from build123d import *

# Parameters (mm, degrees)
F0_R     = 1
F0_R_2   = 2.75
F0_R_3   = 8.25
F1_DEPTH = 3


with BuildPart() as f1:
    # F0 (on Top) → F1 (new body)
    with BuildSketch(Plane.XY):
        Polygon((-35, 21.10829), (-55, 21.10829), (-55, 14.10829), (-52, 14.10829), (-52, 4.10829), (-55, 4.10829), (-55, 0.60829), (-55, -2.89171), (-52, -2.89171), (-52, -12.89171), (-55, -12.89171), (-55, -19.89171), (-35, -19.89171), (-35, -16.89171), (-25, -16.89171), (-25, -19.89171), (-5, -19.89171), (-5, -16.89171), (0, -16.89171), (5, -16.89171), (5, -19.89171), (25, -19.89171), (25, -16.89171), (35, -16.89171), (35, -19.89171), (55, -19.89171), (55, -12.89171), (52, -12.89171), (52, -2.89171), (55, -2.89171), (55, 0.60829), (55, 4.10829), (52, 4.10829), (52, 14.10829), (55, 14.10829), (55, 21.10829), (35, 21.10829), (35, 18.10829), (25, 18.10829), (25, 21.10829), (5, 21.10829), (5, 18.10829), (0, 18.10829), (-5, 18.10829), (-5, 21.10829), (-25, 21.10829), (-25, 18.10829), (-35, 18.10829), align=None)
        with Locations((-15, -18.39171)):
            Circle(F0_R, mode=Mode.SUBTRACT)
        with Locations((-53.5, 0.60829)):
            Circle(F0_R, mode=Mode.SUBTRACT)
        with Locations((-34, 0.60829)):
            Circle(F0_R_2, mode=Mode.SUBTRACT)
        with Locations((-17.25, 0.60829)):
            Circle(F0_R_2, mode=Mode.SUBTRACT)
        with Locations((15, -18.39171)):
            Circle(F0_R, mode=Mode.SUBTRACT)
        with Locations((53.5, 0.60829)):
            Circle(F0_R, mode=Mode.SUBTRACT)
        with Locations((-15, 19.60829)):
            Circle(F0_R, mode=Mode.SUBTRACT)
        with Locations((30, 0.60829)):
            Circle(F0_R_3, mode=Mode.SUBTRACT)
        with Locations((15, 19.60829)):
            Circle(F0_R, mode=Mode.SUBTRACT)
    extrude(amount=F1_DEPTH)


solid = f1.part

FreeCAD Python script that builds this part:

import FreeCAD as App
import Part
import Sketcher
Q = App.Units.Quantity

doc = App.newDocument("Part")
body = doc.addObject("PartDesign::Body", "Body")

# Sketch on XY plane
sketch1 = body.newObject("Sketcher::SketchObject", "Sketch")
sketch1.AttachmentSupport = (doc.getObject("XY_Plane"), [""])
sketch1.MapMode = "FlatFace"
sketch1.addGeometry(Part.LineSegment(App.Vector(-35, 21.1, 0), App.Vector(-55, 21.1, 0)), False)
sketch1.addGeometry(Part.LineSegment(App.Vector(-55, 21.1, 0), App.Vector(-55, 14.1, 0)), False)
sketch1.addGeometry(Part.LineSegment(App.Vector(-55, 14.1, 0), App.Vector(-52, 14.1, 0)), False)
sketch1.addGeometry(Part.LineSegment(App.Vector(-52, 14.1, 0), App.Vector(-52, 4.1, 0)), False)
sketch1.addGeometry(Part.LineSegment(App.Vector(-52, 4.1, 0), App.Vector(-55, 4.1, 0)), False)
sketch1.addGeometry(Part.LineSegment(App.Vector(-55, 4.1, 0), App.Vector(-55, -2.9, 0)), False)
sketch1.addGeometry(Part.LineSegment(App.Vector(-55, -2.9, 0), App.Vector(-52, -2.9, 0)), False)
sketch1.addGeometry(Part.LineSegment(App.Vector(-52, -2.9, 0), App.Vector(-52, -12.9, 0)), False)
sketch1.addGeometry(Part.LineSegment(App.Vector(-52, -12.9, 0), App.Vector(-55, -12.9, 0)), False)
sketch1.addGeometry(Part.LineSegment(App.Vector(-55, -12.9, 0), App.Vector(-55, -19.9, 0)), False)
sketch1.addGeometry(Part.LineSegment(App.Vector(-55, -19.9, 0), App.Vector(-35, -19.9, 0)), False)
sketch1.addGeometry(Part.LineSegment(App.Vector(-35, -19.9, 0), App.Vector(-35, -16.9, 0)), False)
sketch1.addGeometry(Part.LineSegment(App.Vector(-35, -16.9, 0), App.Vector(-25, -16.9, 0)), False)
sketch1.addGeometry(Part.LineSegment(App.Vector(-25, -16.9, 0), App.Vector(-25, -19.9, 0)), False)
sketch1.addGeometry(Part.LineSegment(App.Vector(-25, -19.9, 0), App.Vector(-5, -19.9, 0)), False)
sketch1.addGeometry(Part.LineSegment(App.Vector(-5, -19.9, 0), App.Vector(-5, -16.9, 0)), False)
sketch1.addGeometry(Part.LineSegment(App.Vector(-5, -16.9, 0), App.Vector(5, -16.9, 0)), False)
sketch1.addGeometry(Part.LineSegment(App.Vector(5, -16.9, 0), App.Vector(5, -19.9, 0)), False)
sketch1.addGeometry(Part.LineSegment(App.Vector(5, -19.9, 0), App.Vector(25, -19.9, 0)), False)
sketch1.addGeometry(Part.LineSegment(App.Vector(25, -19.9, 0), App.Vector(25, -16.9, 0)), False)
sketch1.addGeometry(Part.LineSegment(App.Vector(25, -16.9, 0), App.Vector(35, -16.9, 0)), False)
sketch1.addGeometry(Part.LineSegment(App.Vector(35, -16.9, 0), App.Vector(35, -19.9, 0)), False)
sketch1.addGeometry(Part.LineSegment(App.Vector(35, -19.9, 0), App.Vector(55, -19.9, 0)), False)
sketch1.addGeometry(Part.LineSegment(App.Vector(55, -19.9, 0), App.Vector(55, -12.9, 0)), False)
sketch1.addGeometry(Part.LineSegment(App.Vector(55, -12.9, 0), App.Vector(52, -12.9, 0)), False)
sketch1.addGeometry(Part.LineSegment(App.Vector(52, -12.9, 0), App.Vector(52, -2.9, 0)), False)
sketch1.addGeometry(Part.LineSegment(App.Vector(52, -2.9, 0), App.Vector(55, -2.9, 0)), False)
sketch1.addGeometry(Part.LineSegment(App.Vector(55, -2.9, 0), App.Vector(55, 4.1, 0)), False)
sketch1.addGeometry(Part.LineSegment(App.Vector(55, 4.1, 0), App.Vector(52, 4.1, 0)), False)
sketch1.addGeometry(Part.LineSegment(App.Vector(52, 4.1, 0), App.Vector(52, 14.1, 0)), False)
sketch1.addGeometry(Part.LineSegment(App.Vector(52, 14.1, 0), App.Vector(55, 14.1, 0)), False)
sketch1.addGeometry(Part.LineSegment(App.Vector(55, 14.1, 0), App.Vector(55, 21.1, 0)), False)
sketch1.addGeometry(Part.LineSegment(App.Vector(55, 21.1, 0), App.Vector(35, 21.1, 0)), False)
sketch1.addGeometry(Part.LineSegment(App.Vector(35, 21.1, 0), App.Vector(35, 18.1, 0)), False)
sketch1.addGeometry(Part.LineSegment(App.Vector(35, 18.1, 0), App.Vector(25, 18.1, 0)), False)
sketch1.addGeometry(Part.LineSegment(App.Vector(25, 18.1, 0), App.Vector(25, 21.1, 0)), False)
sketch1.addGeometry(Part.LineSegment(App.Vector(25, 21.1, 0), App.Vector(5, 21.1, 0)), False)
sketch1.addGeometry(Part.LineSegment(App.Vector(5, 21.1, 0), App.Vector(5, 18.1, 0)), False)
sketch1.addGeometry(Part.LineSegment(App.Vector(5, 18.1, 0), App.Vector(-5, 18.1, 0)), False)
sketch1.addGeometry(Part.LineSegment(App.Vector(-5, 18.1, 0), App.Vector(-5, 21.1, 0)), False)
sketch1.addGeometry(Part.LineSegment(App.Vector(-5, 21.1, 0), App.Vector(-25, 21.1, 0)), False)
sketch1.addGeometry(Part.LineSegment(App.Vector(-25, 21.1, 0), App.Vector(-25, 18.1, 0)), False)
sketch1.addGeometry(Part.LineSegment(App.Vector(-25, 18.1, 0), App.Vector(-35, 18.1, 0)), False)
sketch1.addGeometry(Part.LineSegment(App.Vector(-35, 18.1, 0), App.Vector(-35, 21.1, 0)), False)
sketch1.addGeometry(Part.Circle(App.Vector(-15, -18.4, 0), App.Vector(0, 0, 1), 1), False)
sketch1.addGeometry(Part.Circle(App.Vector(15, -18.4, 0), App.Vector(0, 0, 1), 1), False)
sketch1.addGeometry(Part.Circle(App.Vector(-53.5, 0.6, 0), App.Vector(0, 0, 1), 1), False)
sketch1.addGeometry(Part.Circle(App.Vector(-34, 0.6, 0), App.Vector(0, 0, 1), 2.8), False)
sketch1.addGeometry(Part.Circle(App.Vector(-17.2, 0.6, 0), App.Vector(0, 0, 1), 2.8), False)
sketch1.addGeometry(Part.Circle(App.Vector(-15, 19.6, 0), App.Vector(0, 0, 1), 1), False)
sketch1.addGeometry(Part.Circle(App.Vector(30, 0.6, 0), App.Vector(0, 0, 1), 8.2), False)
sketch1.addGeometry(Part.Circle(App.Vector(53.5, 0.6, 0), App.Vector(0, 0, 1), 1), False)
sketch1.addGeometry(Part.Circle(App.Vector(15, 19.6, 0), App.Vector(0, 0, 1), 1), False)
sketch1.addConstraint(Sketcher.Constraint("Coincident", 0, 2, 1, 1))
sketch1.addConstraint(Sketcher.Constraint("Coincident", 1, 2, 2, 1))
sketch1.addConstraint(Sketcher.Constraint("Coincident", 2, 2, 3, 1))
sketch1.addConstraint(Sketcher.Constraint("Coincident", 3, 2, 4, 1))
sketch1.addConstraint(Sketcher.Constraint("Coincident", 4, 2, 5, 1))
sketch1.addConstraint(Sketcher.Constraint("Coincident", 5, 2, 6, 1))
sketch1.addConstraint(Sketcher.Constraint("Coincident", 6, 2, 7, 1))
sketch1.addConstraint(Sketcher.Constraint("Coincident", 7, 2, 8, 1))
sketch1.addConstraint(Sketcher.Constraint("Coincident", 8, 2, 9, 1))
sketch1.addConstraint(Sketcher.Constraint("Coincident", 9, 2, 10, 1))
sketch1.addConstraint(Sketcher.Constraint("Coincident", 10, 2, 11, 1))
sketch1.addConstraint(Sketcher.Constraint("Coincident", 11, 2, 12, 1))
sketch1.addConstraint(Sketcher.Constraint("Coincident", 12, 2, 13, 1))
sketch1.addConstraint(Sketcher.Constraint("Coincident", 13, 2, 14, 1))
sketch1.addConstraint(Sketcher.Constraint("Coincident", 14, 2, 15, 1))
sketch1.addConstraint(Sketcher.Constraint("Coincident", 15, 2, 16, 1))
sketch1.addConstraint(Sketcher.Constraint("Coincident", 16, 2, 17, 1))
sketch1.addConstraint(Sketcher.Constraint("Coincident", 17, 2, 18, 1))
sketch1.addConstraint(Sketcher.Constraint("Coincident", 18, 2, 19, 1))
sketch1.addConstraint(Sketcher.Constraint("Coincident", 19, 2, 20, 1))
sketch1.addConstraint(Sketcher.Constraint("Coincident", 20, 2, 21, 1))
sketch1.addConstraint(Sketcher.Constraint("Coincident", 21, 2, 22, 1))
sketch1.addConstraint(Sketcher.Constraint("Coincident", 22, 2, 23, 1))
sketch1.addConstraint(Sketcher.Constraint("Coincident", 23, 2, 24, 1))
sketch1.addConstraint(Sketcher.Constraint("Coincident", 24, 2, 25, 1))
sketch1.addConstraint(Sketcher.Constraint("Coincident", 25, 2, 26, 1))
sketch1.addConstraint(Sketcher.Constraint("Coincident", 26, 2, 27, 1))
sketch1.addConstraint(Sketcher.Constraint("Coincident", 27, 2, 28, 1))
sketch1.addConstraint(Sketcher.Constraint("Coincident", 28, 2, 29, 1))
sketch1.addConstraint(Sketcher.Constraint("Coincident", 29, 2, 30, 1))
sketch1.addConstraint(Sketcher.Constraint("Coincident", 30, 2, 31, 1))
sketch1.addConstraint(Sketcher.Constraint("Coincident", 31, 2, 32, 1))
sketch1.addConstraint(Sketcher.Constraint("Coincident", 32, 2, 33, 1))
sketch1.addConstraint(Sketcher.Constraint("Coincident", 33, 2, 34, 1))
sketch1.addConstraint(Sketcher.Constraint("Coincident", 34, 2, 35, 1))
sketch1.addConstraint(Sketcher.Constraint("Coincident", 35, 2, 36, 1))
sketch1.addConstraint(Sketcher.Constraint("Coincident", 36, 2, 37, 1))
sketch1.addConstraint(Sketcher.Constraint("Coincident", 37, 2, 38, 1))
sketch1.addConstraint(Sketcher.Constraint("Coincident", 38, 2, 39, 1))
sketch1.addConstraint(Sketcher.Constraint("Coincident", 39, 2, 40, 1))
sketch1.addConstraint(Sketcher.Constraint("Coincident", 40, 2, 41, 1))
sketch1.addConstraint(Sketcher.Constraint("Coincident", 41, 2, 42, 1))
sketch1.addConstraint(Sketcher.Constraint("Coincident", 42, 2, 43, 1))
sketch1.addConstraint(Sketcher.Constraint("Coincident", 43, 2, 0, 1))
sketch1.addConstraint(Sketcher.Constraint("Horizontal", 0))
sketch1.addConstraint(Sketcher.Constraint("Vertical", 1))
sketch1.addConstraint(Sketcher.Constraint("Horizontal", 2))
sketch1.addConstraint(Sketcher.Constraint("Vertical", 3))
sketch1.addConstraint(Sketcher.Constraint("Horizontal", 4))
sketch1.addConstraint(Sketcher.Constraint("Vertical", 5))
sketch1.addConstraint(Sketcher.Constraint("Horizontal", 6))
sketch1.addConstraint(Sketcher.Constraint("Vertical", 7))
sketch1.addConstraint(Sketcher.Constraint("Horizontal", 8))
sketch1.addConstraint(Sketcher.Constraint("Vertical", 9))
sketch1.addConstraint(Sketcher.Constraint("Horizontal", 10))
sketch1.addConstraint(Sketcher.Constraint("Vertical", 11))
sketch1.addConstraint(Sketcher.Constraint("Horizontal", 12))
sketch1.addConstraint(Sketcher.Constraint("Vertical", 13))
sketch1.addConstraint(Sketcher.Constraint("Horizontal", 14))
sketch1.addConstraint(Sketcher.Constraint("Vertical", 15))
sketch1.addConstraint(Sketcher.Constraint("Horizontal", 16))
sketch1.addConstraint(Sketcher.Constraint("Vertical", 17))
sketch1.addConstraint(Sketcher.Constraint("Horizontal", 18))
sketch1.addConstraint(Sketcher.Constraint("Vertical", 19))
sketch1.addConstraint(Sketcher.Constraint("Horizontal", 20))
sketch1.addConstraint(Sketcher.Constraint("Vertical", 21))
sketch1.addConstraint(Sketcher.Constraint("Horizontal", 22))
sketch1.addConstraint(Sketcher.Constraint("Vertical", 23))
sketch1.addConstraint(Sketcher.Constraint("Horizontal", 24))
sketch1.addConstraint(Sketcher.Constraint("Vertical", 25))
sketch1.addConstraint(Sketcher.Constraint("Horizontal", 26))
sketch1.addConstraint(Sketcher.Constraint("Vertical", 27))
sketch1.addConstraint(Sketcher.Constraint("Horizontal", 28))
sketch1.addConstraint(Sketcher.Constraint("Vertical", 29))
sketch1.addConstraint(Sketcher.Constraint("Horizontal", 30))
sketch1.addConstraint(Sketcher.Constraint("Vertical", 31))
sketch1.addConstraint(Sketcher.Constraint("Horizontal", 32))
sketch1.addConstraint(Sketcher.Constraint("Vertical", 33))
sketch1.addConstraint(Sketcher.Constraint("Horizontal", 34))
sketch1.addConstraint(Sketcher.Constraint("Vertical", 35))
sketch1.addConstraint(Sketcher.Constraint("Horizontal", 36))
sketch1.addConstraint(Sketcher.Constraint("Vertical", 37))
sketch1.addConstraint(Sketcher.Constraint("Horizontal", 38))
sketch1.addConstraint(Sketcher.Constraint("Vertical", 39))
sketch1.addConstraint(Sketcher.Constraint("Horizontal", 40))
sketch1.addConstraint(Sketcher.Constraint("Vertical", 41))
sketch1.addConstraint(Sketcher.Constraint("Horizontal", 42))
sketch1.addConstraint(Sketcher.Constraint("Vertical", 43))
sketch1.addConstraint(Sketcher.Constraint("Equal", 44, 45))
sketch1.addConstraint(Sketcher.Constraint("Equal", 45, 46))
sketch1.addConstraint(Sketcher.Constraint("Equal", 47, 48))
sketch1.addConstraint(Sketcher.Constraint("Equal", 46, 49))
sketch1.addConstraint(Sketcher.Constraint("Equal", 49, 51))
sketch1.addConstraint(Sketcher.Constraint("Equal", 51, 52))
sketch1.addConstraint(Sketcher.Constraint("Symmetric", 44, 3, 45, 3, -2))
sketch1.addConstraint(Sketcher.Constraint("Symmetric", 46, 3, 51, 3, -2))
sketch1.addConstraint(Sketcher.Constraint("Symmetric", 49, 3, 52, 3, -2))
sketch1.addConstraint(Sketcher.Constraint("Symmetric", 14, 2, 17, 2, -2))
sketch1.addConstraint(Sketcher.Constraint("Symmetric", 12, 2, 19, 2, -2))
sketch1.addConstraint(Sketcher.Constraint("Symmetric", 10, 2, 21, 2, -2))
sketch1.addConstraint(Sketcher.Constraint("Symmetric", 8, 2, 23, 2, -2))
sketch1.addConstraint(Sketcher.Constraint("Symmetric", 6, 2, 25, 2, -2))
sketch1.addConstraint(Sketcher.Constraint("Symmetric", 4, 2, 27, 2, -2))
sketch1.addConstraint(Sketcher.Constraint("Symmetric", 2, 2, 29, 2, -2))
sketch1.addConstraint(Sketcher.Constraint("Symmetric", 0, 2, 31, 2, -2))
sketch1.addConstraint(Sketcher.Constraint("Symmetric", 36, 2, 39, 2, -2))
sketch1.addConstraint(Sketcher.Constraint("Symmetric", 34, 2, 41, 2, -2))
sketch1.addConstraint(Sketcher.Constraint("Horizontal", 46, 3, 47, 3))
sketch1.addConstraint(Sketcher.Constraint("Horizontal", 47, 3, 48, 3))
sketch1.addConstraint(Sketcher.Constraint("Horizontal", 48, 3, 50, 3))
sketch1.addConstraint(Sketcher.Constraint("Horizontal", 10, 2, 13, 2))
sketch1.addConstraint(Sketcher.Constraint("Horizontal", 12, 2, 15, 2))
sketch1.addConstraint(Sketcher.Constraint("Horizontal", 32, 2, 35, 2))
sketch1.addConstraint(Sketcher.Constraint("Horizontal", 34, 2, 37, 2))
sketch1.addConstraint(Sketcher.Constraint("Vertical", 44, 3, 49, 3))
sketch1.addConstraint(Sketcher.Constraint("Vertical", 1, 2, 4, 2))
sketch1.addConstraint(Sketcher.Constraint("Vertical", 3, 2, 6, 2))
sketch1.addConstraint(Sketcher.Constraint("Vertical", 5, 2, 8, 2))
sketch1.addConstraint(Sketcher.Constraint("Vertical", 21, 2, 32, 2))
sketch1.addConstraint(Sketcher.Constraint("Vertical", 19, 2, 34, 2))
sketch1.addConstraint(Sketcher.Constraint("Vertical", 17, 2, 36, 2))
sketch1.addConstraint(Sketcher.Constraint("Vertical", 11, 2, 42, 2))
sketch1.addConstraint(Sketcher.Constraint("Equal", 10, 14))
sketch1.addConstraint(Sketcher.Constraint("Equal", 12, 16))
sketch1.addConstraint(Sketcher.Constraint("Equal", 42, 3))
sketch1.addConstraint(Sketcher.Constraint("Equal", 1, 5))
sketch1.addConstraint(Sketcher.Constraint("Equal", 3, 7))
sketch1.addConstraint(Sketcher.Constraint("Equal", 5, 9))
sketch1.addConstraint(Sketcher.Constraint("Equal", 30, 11))
sketch1.addConstraint(Sketcher.Constraint("Equal", 21, 33))
sketch1.addConstraint(Sketcher.Constraint("Diameter", 44, Q("2 mm")))
sketch1.addConstraint(Sketcher.Constraint("Diameter", 47, Q("5.5 mm")))
sketch1.addConstraint(Sketcher.Constraint("Diameter", 50, Q("16.5 mm")))
sketch1.addConstraint(Sketcher.Constraint("DistanceX", 0, 2, 0, 1, Q("20 mm")))
sketch1.addConstraint(Sketcher.Constraint("DistanceX", 2, 1, 2, 2, Q("3 mm")))
sketch1.addConstraint(Sketcher.Constraint("DistanceX", 12, 1, 12, 2, Q("10 mm")))
sketch1.addConstraint(Sketcher.Constraint("DistanceY", 1, 2, 1, 1, Q("7 mm")))
sketch1.addConstraint(Sketcher.Constraint("DistanceX", 44, 3, -1, 1, Q("15 mm")))
sketch1.addConstraint(Sketcher.Constraint("DistanceX", 47, 3, -1, 1, Q("34 mm")))
sketch1.addConstraint(Sketcher.Constraint("DistanceX", -1, 1, 50, 3, Q("30 mm")))
sketch1.addConstraint(Sketcher.Constraint("DistanceY", 44, 3, 46, 3, Q("19 mm")))
sketch1.addConstraint(Sketcher.Constraint("DistanceY", 48, 3, 49, 3, Q("19 mm")))
sketch1.addConstraint(Sketcher.Constraint("DistanceX", 46, 3, -1, 1, Q("53.5 mm")))
sketch1.addConstraint(Sketcher.Constraint("DistanceY", 46, 3, 0, 2, Q("20.5 mm")))
sketch1.addConstraint(Sketcher.Constraint("DistanceX", 48, 3, -1, 1, Q("17.25 mm")))
sketch1.addConstraint(Sketcher.Constraint("DistanceY", 44, 3, -1, 1, Q("18.39171 mm")))
pad1 = body.newObject("PartDesign::Pad", "Pad")
pad1.Profile = sketch1
pad1.Length = 3

doc.recompute()
